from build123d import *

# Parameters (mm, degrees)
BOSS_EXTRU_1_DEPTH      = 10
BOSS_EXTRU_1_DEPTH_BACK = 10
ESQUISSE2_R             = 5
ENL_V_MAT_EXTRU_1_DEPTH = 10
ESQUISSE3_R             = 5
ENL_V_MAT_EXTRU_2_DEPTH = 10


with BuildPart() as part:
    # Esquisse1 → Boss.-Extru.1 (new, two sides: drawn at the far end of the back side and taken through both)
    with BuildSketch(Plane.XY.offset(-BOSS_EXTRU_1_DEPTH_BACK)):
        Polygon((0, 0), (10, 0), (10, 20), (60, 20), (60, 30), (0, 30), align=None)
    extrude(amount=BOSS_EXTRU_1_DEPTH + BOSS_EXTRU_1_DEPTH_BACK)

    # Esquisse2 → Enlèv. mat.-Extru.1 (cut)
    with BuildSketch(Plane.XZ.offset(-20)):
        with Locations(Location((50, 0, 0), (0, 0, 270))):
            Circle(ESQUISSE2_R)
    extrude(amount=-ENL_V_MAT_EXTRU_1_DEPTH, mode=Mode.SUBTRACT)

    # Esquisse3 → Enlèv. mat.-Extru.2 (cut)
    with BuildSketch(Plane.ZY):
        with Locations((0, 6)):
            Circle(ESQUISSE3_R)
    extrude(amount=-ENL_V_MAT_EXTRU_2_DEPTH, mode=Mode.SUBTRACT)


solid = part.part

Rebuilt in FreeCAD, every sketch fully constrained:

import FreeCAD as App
import Part
import Sketcher

V = App.Vector
Q = App.Units.Quantity


def add_polygon(sketch, points):
    """Adds a closed chain of lines whose ends are joined by coincident constraints."""
    first, n = sketch.GeometryCount, len(points)
    for a, b in zip(points, points[1:] + points[:1]):
        sketch.addGeometry(Part.LineSegment(App.Vector(*a, 0), App.Vector(*b, 0)), False)
    for i in range(n):
        sketch.addConstraint(Sketcher.Constraint("Coincident", first + i, 2, first + (i + 1) % n, 1))

doc = App.newDocument("Part")
body = doc.addObject("PartDesign::Body", "Body")

sketch1 = body.newObject("Sketcher::SketchObject", "Sketch")
sketch1.AttachmentSupport = (doc.getObject("XY_Plane"), [""])
sketch1.MapMode = "FlatFace"
add_polygon(sketch1, [(0, 0), (10, 0), (10, 20), (60, 20), (60, 30), (0, 30)])
sketch1.addConstraint([
    Sketcher.Constraint("Horizontal", 0),
    Sketcher.Constraint("Vertical", 1),
    Sketcher.Constraint("Horizontal", 2),
    Sketcher.Constraint("Vertical", 3),
    Sketcher.Constraint("Horizontal", 4),
    Sketcher.Constraint("Vertical", 5),
    Sketcher.Constraint("Coincident", 5, 2, -1, 1),
    Sketcher.Constraint("Equal", 0, 3),
    Sketcher.Constraint("DistanceX", 0, 1, 0, 2, Q("10 mm")),
    Sketcher.Constraint("DistanceX", 2, 1, 2, 2, Q("50 mm")),
    Sketcher.Constraint("DistanceY", 1, 1, 1, 2, Q("20 mm")),
])
pad1 = body.newObject("PartDesign::Pad", "Pad")
pad1.Profile = sketch1
pad1.Type = "TwoLengths"
pad1.Length = 10
pad1.Length2 = 10

sketch2 = body.newObject("Sketcher::SketchObject", "Sketch001")
sketch2.AttachmentSupport = (doc.getObject("XZ_Plane"), [""])
sketch2.MapMode = "FlatFace"
sketch2.AttachmentOffset = App.Placement(V(0, 0, -20), App.Rotation())
sketch2.addGeometry(Part.Circle(V(50, 0, 0), V(0, 0, 1), 5), False)
sketch2.addConstraint([
    Sketcher.Constraint("PointOnObject", 0, 3, -1),
    Sketcher.Constraint("Diameter", 0, Q("10 mm")),
    Sketcher.Constraint("DistanceX", -1, 1, 0, 3, Q("50 mm")),
])
pocket1 = body.newObject("PartDesign::Pocket", "Pocket")
pocket1.Profile = sketch2
pocket1.Length = 10

sketch3 = body.newObject("Sketcher::SketchObject", "Sketch002")
sketch3.AttachmentSupport = (doc.getObject("YZ_Plane"), [""])
sketch3.MapMode = "FlatFace"
sketch3.addGeometry(Part.Circle(V(6, 0, 0), V(0, 0, 1), 5), False)
sketch3.addConstraint([
    Sketcher.Constraint("PointOnObject", 0, 3, -1),
    Sketcher.Constraint("Diameter", 0, Q("10 mm")),
    Sketcher.Constraint("DistanceX", -1, 1, 0, 3, Q("6 mm")),
])
pocket2 = body.newObject("PartDesign::Pocket", "Pocket001")
pocket2.Profile = sketch3
pocket2.Length = 10
pocket2.Reversed = True

doc.recompute()
